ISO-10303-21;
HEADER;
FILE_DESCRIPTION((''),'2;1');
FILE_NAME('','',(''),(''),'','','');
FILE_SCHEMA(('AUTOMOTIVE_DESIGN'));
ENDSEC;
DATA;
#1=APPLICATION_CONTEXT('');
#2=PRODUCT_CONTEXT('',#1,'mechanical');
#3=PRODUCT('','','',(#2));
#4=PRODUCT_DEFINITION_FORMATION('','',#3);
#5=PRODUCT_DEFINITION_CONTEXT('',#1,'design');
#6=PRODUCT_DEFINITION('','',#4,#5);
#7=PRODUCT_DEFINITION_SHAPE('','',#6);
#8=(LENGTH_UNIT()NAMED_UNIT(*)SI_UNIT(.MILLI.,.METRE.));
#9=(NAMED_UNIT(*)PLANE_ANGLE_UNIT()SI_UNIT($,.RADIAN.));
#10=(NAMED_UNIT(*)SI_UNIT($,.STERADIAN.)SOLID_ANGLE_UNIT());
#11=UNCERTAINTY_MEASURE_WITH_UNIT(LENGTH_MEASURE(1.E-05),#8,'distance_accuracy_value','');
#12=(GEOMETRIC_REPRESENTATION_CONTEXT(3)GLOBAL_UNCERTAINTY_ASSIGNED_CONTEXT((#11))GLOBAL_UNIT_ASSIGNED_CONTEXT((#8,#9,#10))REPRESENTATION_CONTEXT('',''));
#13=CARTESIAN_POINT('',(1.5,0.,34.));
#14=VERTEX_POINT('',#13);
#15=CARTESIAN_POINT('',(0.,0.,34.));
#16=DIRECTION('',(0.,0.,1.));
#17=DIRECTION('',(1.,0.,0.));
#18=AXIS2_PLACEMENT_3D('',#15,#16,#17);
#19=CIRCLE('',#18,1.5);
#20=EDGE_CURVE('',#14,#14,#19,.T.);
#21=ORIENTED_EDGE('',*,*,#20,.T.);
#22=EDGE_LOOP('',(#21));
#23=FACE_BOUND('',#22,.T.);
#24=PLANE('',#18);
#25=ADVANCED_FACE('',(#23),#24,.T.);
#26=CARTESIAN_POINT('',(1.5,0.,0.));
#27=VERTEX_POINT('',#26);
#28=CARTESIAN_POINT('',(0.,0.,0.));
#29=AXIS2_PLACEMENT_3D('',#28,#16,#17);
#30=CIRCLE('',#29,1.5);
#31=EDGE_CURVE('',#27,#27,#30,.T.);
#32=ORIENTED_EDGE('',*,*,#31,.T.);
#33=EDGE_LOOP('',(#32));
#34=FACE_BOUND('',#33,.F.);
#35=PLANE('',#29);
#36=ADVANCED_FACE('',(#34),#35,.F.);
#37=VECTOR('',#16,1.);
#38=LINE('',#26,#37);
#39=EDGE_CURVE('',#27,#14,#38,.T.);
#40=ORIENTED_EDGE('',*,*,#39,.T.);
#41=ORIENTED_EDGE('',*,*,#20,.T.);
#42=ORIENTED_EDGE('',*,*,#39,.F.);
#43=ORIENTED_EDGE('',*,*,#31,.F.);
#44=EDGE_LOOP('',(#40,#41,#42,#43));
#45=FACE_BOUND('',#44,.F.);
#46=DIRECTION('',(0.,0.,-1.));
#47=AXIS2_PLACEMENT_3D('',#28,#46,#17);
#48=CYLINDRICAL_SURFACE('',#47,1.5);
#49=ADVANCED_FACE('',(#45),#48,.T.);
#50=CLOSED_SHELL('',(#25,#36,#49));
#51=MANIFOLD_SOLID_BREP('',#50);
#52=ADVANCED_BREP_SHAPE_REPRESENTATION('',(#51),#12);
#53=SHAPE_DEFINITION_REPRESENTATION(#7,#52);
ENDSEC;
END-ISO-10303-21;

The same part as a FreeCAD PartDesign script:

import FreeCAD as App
import Part
import Sketcher
from FreeCAD import Vector

doc = App.newDocument("Part")
body = doc.addObject("PartDesign::Body", "Body")

# Sketch on XY plane
sketch1 = body.newObject("Sketcher::SketchObject", "Sketch")
sketch1.AttachmentSupport = (doc.getObject("XY_Plane"), [""])
sketch1.MapMode = "FlatFace"
sketch1.addGeometry(Part.Circle(Vector(0, 0, 0), Vector(0, 0, 1), 1.5), False)
sketch1.addConstraint([
    Sketcher.Constraint("Coincident", 0, 3, -1, 1),
    Sketcher.Constraint("Diameter", 0, 3.0),
])
pad1 = body.newObject("PartDesign::Pad", "Pad")
pad1.Profile = sketch1
pad1.Length = 34

doc.recompute()
